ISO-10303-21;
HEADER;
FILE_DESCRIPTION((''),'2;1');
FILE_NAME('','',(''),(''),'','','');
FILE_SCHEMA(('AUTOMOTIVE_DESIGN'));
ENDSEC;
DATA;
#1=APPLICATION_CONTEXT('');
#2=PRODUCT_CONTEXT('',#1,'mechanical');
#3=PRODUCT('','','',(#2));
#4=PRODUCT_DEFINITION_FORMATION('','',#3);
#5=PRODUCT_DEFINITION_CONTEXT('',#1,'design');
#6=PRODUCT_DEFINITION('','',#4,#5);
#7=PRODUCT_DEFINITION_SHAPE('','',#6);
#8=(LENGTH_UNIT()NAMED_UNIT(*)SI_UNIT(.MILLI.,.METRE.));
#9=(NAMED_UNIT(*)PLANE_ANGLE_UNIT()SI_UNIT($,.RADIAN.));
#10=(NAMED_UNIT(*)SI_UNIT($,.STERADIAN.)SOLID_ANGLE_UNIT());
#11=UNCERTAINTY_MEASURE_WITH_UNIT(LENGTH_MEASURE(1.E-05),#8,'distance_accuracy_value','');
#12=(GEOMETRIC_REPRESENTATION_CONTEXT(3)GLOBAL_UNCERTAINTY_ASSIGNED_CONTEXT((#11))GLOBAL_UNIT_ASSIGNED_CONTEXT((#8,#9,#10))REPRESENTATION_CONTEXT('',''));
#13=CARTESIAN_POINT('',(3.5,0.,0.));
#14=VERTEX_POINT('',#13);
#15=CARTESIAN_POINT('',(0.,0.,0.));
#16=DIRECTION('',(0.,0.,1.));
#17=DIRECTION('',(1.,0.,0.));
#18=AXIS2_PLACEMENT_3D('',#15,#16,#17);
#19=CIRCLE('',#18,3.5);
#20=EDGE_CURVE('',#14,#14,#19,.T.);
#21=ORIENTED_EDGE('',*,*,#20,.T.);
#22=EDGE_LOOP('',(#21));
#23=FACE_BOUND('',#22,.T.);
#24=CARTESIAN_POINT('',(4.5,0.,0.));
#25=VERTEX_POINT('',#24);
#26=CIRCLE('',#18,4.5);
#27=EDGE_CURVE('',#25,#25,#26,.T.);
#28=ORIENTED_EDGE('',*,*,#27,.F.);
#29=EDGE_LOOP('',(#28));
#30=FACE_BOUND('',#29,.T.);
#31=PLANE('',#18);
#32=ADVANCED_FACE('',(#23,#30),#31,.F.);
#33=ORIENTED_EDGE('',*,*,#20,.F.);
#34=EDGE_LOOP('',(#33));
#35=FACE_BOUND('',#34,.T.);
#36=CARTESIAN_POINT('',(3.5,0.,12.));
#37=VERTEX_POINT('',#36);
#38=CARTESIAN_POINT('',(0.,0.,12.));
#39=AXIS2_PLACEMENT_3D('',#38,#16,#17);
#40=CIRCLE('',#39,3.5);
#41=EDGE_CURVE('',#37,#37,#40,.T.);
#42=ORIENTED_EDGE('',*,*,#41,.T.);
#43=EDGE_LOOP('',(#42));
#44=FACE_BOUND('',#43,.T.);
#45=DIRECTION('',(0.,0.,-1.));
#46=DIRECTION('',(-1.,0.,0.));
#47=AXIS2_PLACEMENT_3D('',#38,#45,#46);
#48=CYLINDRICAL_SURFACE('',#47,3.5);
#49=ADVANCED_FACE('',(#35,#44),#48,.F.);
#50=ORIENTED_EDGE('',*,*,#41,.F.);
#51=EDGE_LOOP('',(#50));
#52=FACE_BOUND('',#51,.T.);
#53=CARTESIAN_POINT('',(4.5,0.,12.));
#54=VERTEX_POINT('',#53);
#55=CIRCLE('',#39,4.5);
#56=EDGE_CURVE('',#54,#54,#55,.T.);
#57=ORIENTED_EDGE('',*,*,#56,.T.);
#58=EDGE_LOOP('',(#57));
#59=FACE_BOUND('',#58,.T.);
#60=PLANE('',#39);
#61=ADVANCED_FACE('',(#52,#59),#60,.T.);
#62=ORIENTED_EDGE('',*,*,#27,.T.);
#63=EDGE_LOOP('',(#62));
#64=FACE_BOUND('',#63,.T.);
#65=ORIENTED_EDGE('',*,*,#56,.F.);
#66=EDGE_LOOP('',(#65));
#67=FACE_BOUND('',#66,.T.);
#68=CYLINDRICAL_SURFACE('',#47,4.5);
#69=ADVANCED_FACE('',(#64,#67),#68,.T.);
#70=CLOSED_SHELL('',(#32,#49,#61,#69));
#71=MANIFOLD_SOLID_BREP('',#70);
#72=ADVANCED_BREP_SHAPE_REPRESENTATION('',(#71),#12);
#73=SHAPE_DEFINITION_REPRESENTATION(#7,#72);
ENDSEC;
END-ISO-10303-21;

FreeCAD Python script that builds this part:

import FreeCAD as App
import Part
import Sketcher


def faces_at(feature, points):
    """Names of the faces that lie closest to the given points."""
    faces = feature.Shape.Faces
    near = lambda p: min(range(len(faces)), key=lambda i: faces[i].distToShape(Part.Vertex(*p))[0])
    return sorted({f"Face{near(p) + 1}" for p in points})

doc = App.newDocument("Part")
body = doc.addObject("PartDesign::Body", "Body")

# Sketch on XY plane
sketch1 = body.newObject("Sketcher::SketchObject", "Sketch")
sketch1.AttachmentSupport = (doc.getObject("XY_Plane"), [""])
sketch1.MapMode = "FlatFace"
sketch1.addGeometry(Part.Circle(App.Vector(0, 0, 0), App.Vector(0, 0, 1), 3.5), False)
sketch1.addConstraint([
    Sketcher.Constraint("Coincident", 0, 3, -1, 1),
    Sketcher.Constraint("Diameter", 0, 7.0),
])
pad1 = body.newObject("PartDesign::Pad", "Pad")
pad1.Profile = sketch1
pad1.Length = 12
doc.recompute()

thickness = body.newObject("PartDesign::Thickness", "Thickness")
thickness.Base = (pad1, faces_at(pad1, [(0, 0, 0), (0, 0, 12)]))
thickness.Value = 1
thickness.Reversed = False
thickness.Join = "Intersection"

doc.recompute()
